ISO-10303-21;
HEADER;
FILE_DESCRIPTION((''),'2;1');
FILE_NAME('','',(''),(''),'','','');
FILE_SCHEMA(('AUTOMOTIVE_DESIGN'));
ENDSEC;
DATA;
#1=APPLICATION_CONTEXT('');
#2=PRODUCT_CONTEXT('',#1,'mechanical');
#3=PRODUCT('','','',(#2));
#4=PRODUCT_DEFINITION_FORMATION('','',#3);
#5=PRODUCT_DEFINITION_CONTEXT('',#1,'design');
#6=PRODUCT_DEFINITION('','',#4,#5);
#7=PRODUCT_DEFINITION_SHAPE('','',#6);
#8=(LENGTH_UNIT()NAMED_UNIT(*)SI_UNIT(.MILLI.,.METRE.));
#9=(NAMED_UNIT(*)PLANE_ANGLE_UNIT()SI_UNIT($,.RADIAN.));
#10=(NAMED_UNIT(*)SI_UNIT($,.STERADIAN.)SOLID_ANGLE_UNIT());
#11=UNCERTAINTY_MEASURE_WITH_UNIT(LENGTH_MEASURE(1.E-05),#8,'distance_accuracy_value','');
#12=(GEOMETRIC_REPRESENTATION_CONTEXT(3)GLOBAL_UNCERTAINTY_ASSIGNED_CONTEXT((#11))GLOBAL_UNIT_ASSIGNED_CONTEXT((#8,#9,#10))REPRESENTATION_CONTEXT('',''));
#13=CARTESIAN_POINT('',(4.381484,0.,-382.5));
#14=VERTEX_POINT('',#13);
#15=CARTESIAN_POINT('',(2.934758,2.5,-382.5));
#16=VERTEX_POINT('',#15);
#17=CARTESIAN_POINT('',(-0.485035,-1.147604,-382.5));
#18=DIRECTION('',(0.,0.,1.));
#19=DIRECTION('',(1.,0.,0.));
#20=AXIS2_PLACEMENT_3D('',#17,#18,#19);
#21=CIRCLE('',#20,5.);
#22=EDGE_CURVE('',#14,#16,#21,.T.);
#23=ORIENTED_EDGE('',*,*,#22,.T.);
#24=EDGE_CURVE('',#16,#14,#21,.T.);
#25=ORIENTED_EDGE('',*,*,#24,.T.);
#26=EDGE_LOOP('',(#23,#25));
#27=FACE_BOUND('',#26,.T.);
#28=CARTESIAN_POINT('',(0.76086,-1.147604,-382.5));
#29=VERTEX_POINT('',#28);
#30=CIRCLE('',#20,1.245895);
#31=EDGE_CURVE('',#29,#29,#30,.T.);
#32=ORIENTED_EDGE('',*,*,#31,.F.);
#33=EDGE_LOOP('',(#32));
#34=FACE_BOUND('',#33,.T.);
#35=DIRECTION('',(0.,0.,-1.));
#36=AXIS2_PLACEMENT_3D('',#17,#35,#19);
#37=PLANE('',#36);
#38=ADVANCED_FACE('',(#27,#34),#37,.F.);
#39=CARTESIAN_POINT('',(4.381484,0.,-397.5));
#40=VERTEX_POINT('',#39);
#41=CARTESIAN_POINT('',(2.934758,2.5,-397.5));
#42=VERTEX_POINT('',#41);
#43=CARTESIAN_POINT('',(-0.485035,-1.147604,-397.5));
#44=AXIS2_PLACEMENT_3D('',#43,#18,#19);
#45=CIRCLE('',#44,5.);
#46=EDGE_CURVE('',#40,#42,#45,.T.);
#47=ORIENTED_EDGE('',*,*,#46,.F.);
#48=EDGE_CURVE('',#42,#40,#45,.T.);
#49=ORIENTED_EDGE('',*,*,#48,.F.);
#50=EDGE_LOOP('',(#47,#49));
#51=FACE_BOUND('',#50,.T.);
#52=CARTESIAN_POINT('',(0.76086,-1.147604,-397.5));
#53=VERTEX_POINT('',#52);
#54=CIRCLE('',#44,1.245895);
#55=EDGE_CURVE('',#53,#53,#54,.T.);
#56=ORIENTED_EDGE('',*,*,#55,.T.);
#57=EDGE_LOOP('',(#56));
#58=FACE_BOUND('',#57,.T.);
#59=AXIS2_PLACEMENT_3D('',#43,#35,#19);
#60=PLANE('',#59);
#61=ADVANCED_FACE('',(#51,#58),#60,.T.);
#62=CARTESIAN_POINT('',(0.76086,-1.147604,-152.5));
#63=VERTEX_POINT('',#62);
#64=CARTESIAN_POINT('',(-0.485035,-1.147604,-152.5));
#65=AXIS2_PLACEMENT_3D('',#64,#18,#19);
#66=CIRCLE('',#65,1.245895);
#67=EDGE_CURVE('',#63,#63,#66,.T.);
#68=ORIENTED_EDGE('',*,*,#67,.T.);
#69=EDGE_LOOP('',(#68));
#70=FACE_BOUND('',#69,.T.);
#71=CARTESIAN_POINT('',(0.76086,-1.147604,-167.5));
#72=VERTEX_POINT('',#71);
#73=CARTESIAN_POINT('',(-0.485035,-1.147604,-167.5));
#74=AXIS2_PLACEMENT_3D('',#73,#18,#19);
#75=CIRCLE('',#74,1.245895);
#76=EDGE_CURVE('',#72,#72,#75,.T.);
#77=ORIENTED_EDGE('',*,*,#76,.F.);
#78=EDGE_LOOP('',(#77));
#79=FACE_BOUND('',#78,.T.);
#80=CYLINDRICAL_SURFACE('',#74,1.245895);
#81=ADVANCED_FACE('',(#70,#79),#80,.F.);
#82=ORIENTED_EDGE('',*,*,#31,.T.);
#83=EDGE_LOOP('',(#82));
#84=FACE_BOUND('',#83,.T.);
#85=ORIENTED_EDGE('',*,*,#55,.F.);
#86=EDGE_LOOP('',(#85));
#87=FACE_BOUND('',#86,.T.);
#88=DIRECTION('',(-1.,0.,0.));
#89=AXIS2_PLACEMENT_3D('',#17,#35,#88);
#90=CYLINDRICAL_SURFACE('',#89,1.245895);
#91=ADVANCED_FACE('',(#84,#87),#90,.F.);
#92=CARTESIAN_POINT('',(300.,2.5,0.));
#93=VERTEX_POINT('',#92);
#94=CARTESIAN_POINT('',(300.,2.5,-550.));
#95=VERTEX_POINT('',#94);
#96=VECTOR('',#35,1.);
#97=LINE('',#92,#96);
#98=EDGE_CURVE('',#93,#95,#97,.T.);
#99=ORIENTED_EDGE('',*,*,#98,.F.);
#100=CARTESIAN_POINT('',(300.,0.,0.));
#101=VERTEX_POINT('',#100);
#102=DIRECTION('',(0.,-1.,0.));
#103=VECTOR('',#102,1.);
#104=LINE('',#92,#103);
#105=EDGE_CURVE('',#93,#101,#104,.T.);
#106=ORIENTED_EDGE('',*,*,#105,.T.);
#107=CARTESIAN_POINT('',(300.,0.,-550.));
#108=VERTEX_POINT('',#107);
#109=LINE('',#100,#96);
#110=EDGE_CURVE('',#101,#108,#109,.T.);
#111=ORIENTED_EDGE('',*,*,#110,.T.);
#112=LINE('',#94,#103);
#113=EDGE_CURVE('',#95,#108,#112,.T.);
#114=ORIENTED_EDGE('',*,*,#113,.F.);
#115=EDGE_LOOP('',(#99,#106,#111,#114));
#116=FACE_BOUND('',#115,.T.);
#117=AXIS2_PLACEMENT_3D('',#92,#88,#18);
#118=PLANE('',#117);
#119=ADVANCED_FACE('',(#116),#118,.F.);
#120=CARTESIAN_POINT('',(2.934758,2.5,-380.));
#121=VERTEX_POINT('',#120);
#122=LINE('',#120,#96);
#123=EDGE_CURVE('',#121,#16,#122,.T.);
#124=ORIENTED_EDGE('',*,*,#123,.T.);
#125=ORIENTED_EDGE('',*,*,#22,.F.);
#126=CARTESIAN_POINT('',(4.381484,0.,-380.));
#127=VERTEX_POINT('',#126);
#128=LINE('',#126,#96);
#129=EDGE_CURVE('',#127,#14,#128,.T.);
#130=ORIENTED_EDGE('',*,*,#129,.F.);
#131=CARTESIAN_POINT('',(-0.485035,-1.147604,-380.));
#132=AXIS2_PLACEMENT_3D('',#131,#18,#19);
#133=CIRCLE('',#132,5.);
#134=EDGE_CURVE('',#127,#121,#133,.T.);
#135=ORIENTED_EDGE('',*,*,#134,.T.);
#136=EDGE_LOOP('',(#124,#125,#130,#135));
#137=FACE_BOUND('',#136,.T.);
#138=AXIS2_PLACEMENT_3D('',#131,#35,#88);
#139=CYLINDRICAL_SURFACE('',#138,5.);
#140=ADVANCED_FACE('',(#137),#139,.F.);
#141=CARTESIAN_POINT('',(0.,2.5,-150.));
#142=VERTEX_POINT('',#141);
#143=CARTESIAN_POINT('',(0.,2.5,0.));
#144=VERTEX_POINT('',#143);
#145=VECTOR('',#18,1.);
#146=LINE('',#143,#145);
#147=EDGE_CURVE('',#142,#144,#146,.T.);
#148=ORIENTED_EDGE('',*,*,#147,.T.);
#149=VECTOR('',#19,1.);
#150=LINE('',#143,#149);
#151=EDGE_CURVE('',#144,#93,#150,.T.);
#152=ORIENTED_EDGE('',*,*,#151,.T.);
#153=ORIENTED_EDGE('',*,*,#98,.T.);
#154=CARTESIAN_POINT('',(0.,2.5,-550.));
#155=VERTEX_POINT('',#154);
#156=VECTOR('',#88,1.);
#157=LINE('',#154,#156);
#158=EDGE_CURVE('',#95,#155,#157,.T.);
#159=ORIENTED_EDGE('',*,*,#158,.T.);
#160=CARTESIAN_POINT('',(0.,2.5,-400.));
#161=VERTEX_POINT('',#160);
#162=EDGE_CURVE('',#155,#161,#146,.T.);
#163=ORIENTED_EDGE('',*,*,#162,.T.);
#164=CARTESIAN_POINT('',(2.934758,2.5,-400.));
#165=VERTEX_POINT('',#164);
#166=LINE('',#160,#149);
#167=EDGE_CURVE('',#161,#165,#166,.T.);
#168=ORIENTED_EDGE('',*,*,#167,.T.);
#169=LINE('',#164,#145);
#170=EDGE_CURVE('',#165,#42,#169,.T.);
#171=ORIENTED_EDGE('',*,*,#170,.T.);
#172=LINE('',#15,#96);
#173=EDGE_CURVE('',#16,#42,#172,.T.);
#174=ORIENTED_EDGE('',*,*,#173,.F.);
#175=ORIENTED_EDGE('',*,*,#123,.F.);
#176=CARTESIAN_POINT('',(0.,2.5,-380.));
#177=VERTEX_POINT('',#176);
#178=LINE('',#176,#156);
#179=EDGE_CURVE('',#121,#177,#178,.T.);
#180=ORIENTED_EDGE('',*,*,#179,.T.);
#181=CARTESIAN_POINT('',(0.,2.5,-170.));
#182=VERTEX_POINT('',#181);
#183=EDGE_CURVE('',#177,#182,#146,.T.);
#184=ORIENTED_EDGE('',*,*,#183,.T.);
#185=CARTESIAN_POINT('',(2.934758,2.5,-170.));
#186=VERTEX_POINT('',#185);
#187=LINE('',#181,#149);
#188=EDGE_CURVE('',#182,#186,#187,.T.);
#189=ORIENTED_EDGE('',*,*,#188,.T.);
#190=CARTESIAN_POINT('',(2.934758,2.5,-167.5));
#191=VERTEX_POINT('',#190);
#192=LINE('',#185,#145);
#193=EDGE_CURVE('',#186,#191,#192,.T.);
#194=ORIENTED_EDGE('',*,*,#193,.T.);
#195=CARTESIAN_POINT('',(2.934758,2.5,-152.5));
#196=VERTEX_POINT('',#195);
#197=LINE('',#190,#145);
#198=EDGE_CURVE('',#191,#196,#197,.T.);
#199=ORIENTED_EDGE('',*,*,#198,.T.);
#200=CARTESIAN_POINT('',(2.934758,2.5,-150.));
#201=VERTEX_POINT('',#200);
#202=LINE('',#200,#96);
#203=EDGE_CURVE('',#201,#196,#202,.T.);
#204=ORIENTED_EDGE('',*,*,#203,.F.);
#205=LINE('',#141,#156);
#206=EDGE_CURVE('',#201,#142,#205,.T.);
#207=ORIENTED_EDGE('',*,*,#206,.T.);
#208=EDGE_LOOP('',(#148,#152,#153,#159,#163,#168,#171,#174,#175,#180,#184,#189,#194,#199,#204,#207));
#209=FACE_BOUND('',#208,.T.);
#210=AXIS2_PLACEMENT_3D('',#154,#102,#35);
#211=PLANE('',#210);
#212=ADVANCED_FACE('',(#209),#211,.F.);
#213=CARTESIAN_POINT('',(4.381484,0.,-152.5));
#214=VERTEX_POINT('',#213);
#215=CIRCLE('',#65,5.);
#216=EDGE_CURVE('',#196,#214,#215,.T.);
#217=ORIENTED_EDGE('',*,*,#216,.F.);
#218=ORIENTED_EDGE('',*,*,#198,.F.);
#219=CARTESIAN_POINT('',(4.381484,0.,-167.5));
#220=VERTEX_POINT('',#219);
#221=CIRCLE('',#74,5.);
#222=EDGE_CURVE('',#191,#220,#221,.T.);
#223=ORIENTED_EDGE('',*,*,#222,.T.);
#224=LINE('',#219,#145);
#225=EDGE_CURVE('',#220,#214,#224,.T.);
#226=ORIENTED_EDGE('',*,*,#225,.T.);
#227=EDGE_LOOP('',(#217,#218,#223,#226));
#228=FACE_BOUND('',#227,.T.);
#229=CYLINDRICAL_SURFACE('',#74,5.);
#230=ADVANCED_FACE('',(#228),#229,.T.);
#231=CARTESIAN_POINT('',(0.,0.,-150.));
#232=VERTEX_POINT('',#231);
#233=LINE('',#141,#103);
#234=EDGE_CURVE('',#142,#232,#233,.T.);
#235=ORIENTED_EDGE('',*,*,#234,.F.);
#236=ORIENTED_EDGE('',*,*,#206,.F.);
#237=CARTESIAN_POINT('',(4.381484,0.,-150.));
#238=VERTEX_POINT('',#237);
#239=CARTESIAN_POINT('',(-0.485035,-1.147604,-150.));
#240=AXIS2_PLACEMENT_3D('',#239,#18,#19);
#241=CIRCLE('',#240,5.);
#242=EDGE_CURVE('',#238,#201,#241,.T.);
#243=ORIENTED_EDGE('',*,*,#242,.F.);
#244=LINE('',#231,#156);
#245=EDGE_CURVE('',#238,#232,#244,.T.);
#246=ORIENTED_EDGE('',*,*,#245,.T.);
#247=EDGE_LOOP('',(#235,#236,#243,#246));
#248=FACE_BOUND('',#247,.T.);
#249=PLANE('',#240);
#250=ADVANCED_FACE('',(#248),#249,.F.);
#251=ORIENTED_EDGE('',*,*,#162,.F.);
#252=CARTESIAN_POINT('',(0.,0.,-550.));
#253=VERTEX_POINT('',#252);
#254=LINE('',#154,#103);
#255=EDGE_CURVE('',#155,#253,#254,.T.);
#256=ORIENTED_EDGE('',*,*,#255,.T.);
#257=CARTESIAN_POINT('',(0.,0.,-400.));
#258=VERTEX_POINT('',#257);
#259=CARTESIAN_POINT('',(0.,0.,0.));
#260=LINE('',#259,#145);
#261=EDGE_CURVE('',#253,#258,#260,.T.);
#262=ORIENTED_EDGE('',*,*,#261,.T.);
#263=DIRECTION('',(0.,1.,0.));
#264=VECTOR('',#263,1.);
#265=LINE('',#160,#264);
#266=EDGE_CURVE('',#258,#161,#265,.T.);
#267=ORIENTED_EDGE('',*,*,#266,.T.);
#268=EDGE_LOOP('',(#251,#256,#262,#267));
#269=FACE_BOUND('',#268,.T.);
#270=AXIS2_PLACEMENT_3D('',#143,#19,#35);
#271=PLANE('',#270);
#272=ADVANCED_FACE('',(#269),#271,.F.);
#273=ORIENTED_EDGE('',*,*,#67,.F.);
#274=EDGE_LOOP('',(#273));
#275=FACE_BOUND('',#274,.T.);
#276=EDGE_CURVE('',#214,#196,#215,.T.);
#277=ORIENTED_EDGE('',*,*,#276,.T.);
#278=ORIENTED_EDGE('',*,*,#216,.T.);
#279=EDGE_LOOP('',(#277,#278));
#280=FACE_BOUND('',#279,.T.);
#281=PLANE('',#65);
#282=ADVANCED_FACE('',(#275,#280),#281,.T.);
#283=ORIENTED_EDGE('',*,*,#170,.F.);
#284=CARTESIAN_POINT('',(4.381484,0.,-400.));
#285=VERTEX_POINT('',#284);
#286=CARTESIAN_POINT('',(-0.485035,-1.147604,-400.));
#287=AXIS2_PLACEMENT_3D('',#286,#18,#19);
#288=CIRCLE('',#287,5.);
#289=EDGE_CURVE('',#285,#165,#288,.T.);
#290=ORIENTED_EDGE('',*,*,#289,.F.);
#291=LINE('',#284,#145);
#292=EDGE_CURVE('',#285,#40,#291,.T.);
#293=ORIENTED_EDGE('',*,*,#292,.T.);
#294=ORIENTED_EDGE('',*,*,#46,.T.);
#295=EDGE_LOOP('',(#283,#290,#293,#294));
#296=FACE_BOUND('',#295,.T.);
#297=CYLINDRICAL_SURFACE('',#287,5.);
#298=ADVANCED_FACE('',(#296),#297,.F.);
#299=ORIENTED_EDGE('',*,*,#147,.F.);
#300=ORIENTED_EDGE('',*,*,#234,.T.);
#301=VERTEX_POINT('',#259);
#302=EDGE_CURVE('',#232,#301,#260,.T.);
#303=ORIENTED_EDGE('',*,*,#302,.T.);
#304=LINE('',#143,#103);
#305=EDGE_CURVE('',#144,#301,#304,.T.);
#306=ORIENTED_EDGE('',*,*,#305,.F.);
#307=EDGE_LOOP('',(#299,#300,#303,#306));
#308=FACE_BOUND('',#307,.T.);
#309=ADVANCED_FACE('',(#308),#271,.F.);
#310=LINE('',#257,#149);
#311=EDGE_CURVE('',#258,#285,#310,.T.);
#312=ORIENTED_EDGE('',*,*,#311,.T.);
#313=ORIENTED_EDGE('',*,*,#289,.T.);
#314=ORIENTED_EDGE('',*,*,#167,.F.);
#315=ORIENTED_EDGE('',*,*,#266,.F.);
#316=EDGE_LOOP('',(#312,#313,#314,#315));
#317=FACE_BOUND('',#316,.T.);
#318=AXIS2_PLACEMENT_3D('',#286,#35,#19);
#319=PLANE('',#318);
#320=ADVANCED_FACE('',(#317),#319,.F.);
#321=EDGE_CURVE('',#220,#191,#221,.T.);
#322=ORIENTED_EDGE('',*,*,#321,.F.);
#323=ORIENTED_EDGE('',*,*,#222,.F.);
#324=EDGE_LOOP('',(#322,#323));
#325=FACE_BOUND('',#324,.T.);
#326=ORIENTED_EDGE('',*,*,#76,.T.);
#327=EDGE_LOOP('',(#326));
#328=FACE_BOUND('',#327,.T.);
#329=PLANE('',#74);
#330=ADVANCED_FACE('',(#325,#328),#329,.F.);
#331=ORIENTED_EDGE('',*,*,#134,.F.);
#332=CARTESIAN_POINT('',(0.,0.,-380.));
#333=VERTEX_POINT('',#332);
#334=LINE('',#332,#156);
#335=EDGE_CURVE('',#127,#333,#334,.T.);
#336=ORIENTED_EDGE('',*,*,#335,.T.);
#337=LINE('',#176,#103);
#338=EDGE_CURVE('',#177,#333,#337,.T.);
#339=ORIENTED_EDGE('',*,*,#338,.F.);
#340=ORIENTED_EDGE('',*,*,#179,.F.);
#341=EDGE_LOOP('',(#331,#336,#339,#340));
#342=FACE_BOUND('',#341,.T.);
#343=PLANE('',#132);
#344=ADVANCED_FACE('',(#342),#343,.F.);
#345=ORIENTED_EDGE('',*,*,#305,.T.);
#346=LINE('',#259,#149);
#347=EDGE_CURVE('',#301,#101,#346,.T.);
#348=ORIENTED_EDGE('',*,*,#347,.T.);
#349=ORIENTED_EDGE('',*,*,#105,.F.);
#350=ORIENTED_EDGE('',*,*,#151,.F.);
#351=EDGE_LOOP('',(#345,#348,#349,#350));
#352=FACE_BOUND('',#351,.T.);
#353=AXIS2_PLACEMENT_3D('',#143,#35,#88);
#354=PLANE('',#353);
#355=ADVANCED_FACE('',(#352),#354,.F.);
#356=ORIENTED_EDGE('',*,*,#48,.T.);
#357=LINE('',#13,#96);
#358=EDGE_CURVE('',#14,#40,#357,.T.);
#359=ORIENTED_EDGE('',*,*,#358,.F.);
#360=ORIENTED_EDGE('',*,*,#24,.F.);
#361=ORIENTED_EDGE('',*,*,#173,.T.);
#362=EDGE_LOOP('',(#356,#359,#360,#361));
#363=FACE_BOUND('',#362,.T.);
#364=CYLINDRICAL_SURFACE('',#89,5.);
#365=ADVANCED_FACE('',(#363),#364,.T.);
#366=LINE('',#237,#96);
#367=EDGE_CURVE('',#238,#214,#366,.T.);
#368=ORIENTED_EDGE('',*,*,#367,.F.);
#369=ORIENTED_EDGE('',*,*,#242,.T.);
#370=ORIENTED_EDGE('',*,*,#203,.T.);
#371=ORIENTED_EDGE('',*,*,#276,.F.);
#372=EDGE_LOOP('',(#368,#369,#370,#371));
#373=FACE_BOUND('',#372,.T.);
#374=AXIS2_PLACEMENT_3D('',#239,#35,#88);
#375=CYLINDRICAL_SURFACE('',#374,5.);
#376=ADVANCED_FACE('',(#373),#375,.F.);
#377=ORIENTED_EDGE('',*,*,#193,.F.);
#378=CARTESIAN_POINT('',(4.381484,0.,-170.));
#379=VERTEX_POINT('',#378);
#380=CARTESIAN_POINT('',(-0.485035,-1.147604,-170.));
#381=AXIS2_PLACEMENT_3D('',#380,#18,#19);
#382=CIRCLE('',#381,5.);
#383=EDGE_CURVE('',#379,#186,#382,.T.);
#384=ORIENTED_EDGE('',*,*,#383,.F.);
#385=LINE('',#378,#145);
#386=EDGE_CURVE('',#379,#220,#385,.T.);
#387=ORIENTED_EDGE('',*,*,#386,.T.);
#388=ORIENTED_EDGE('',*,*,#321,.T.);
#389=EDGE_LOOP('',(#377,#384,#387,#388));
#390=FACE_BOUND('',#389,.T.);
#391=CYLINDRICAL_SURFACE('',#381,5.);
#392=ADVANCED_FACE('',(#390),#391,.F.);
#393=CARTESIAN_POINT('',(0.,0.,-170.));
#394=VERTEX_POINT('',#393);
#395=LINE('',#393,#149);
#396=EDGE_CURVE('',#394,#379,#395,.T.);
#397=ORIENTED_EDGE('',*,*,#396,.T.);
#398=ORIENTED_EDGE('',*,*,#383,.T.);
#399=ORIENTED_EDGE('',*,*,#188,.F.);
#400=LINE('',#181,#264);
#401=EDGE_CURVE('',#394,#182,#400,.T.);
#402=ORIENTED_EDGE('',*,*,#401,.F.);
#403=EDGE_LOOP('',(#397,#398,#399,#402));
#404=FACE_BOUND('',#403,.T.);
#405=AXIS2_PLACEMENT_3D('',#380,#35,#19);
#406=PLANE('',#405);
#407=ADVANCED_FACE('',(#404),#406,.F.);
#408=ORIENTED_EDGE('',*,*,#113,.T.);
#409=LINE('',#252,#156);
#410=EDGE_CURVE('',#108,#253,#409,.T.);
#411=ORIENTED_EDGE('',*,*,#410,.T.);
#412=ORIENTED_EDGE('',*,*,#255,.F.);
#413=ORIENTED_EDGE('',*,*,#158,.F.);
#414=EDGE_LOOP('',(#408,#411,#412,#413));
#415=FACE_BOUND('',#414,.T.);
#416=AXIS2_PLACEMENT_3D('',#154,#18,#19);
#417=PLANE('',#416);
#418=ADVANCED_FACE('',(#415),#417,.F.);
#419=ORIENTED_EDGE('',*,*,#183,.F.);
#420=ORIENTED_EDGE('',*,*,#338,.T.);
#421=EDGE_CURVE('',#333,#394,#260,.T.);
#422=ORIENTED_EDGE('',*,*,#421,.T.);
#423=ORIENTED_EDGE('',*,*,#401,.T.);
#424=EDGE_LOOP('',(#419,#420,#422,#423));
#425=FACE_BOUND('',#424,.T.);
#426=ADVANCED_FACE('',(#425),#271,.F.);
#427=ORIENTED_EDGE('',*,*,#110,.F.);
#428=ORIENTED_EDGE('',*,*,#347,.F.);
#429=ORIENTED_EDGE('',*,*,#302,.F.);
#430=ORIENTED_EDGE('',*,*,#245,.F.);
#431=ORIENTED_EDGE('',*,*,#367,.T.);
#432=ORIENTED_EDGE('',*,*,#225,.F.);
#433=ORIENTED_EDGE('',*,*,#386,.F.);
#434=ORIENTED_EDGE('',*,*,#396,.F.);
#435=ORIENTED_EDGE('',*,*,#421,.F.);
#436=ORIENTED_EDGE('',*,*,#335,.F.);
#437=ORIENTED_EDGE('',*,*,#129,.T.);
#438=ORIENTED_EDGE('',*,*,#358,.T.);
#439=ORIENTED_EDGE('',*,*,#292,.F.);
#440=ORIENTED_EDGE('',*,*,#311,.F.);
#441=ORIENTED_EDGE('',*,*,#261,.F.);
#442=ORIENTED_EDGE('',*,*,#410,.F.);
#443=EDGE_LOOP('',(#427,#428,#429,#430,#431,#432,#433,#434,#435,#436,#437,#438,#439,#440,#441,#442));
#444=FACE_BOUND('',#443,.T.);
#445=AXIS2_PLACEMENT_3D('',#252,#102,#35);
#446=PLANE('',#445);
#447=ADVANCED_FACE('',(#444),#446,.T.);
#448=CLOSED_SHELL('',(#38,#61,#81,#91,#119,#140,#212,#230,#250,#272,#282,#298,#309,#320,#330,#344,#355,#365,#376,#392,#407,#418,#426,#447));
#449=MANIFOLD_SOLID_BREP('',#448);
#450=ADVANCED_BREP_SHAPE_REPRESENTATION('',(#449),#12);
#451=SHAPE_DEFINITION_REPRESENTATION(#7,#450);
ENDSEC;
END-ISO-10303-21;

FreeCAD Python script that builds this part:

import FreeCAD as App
import Part
import Sketcher

V = App.Vector


def add_polygon(sketch, points):
    """Adds a closed chain of lines whose ends are joined by coincident constraints."""
    first, n = sketch.GeometryCount, len(points)
    for a, b in zip(points, points[1:] + points[:1]):
        sketch.addGeometry(Part.LineSegment(App.Vector(*a, 0), App.Vector(*b, 0)), False)
    for i in range(n):
        sketch.addConstraint(Sketcher.Constraint("Coincident", first + i, 2, first + (i + 1) % n, 1))

doc = App.newDocument("Part")
params = doc.addObject("Spreadsheet::Sheet", "Params")
for row, (alias, value) in enumerate([
    ("sketch1_width", "300 mm"),
    ("sketch1_height", "550 mm"),
    ("pad1_length", "2.5 mm"),
    ("sketch2_diameter", "10 mm"),
    ("pad2_length", "15 mm"),
    ("sketch3_diameter", "10 mm"),
    ("pocket1_length", "2.5 mm"),
    ("sketch4_diameter", "10 mm"),
    ("pocket2_length", "2.5 mm"),
], start=1):
    params.set(f"A{row}", alias)
    params.set(f"B{row}", "=" + value)
    params.setAlias(f"B{row}", alias)

body = doc.addObject("PartDesign::Body", "Body")

sketch1 = body.newObject("Sketcher::SketchObject", "Sketch")
sketch1.AttachmentSupport = (doc.getObject("XZ_Plane"), [""])
sketch1.MapMode = "FlatFace"
add_polygon(sketch1, [(0, -550), (0, 0), (300, 0), (300, -550)])
sketch1.addConstraint(Sketcher.Constraint("Vertical", 0))
sketch1.addConstraint(Sketcher.Constraint("Horizontal", 1))
sketch1.addConstraint(Sketcher.Constraint("Vertical", 2))
sketch1.addConstraint(Sketcher.Constraint("Horizontal", 3))
sketch1.addConstraint(Sketcher.Constraint("Coincident", 0, 2, -1, 1))
sketch1.addConstraint(Sketcher.Constraint("DistanceX", 1, 1, 1, 2, 300.0))
sketch1.addConstraint(Sketcher.Constraint("DistanceY", 0, 1, 0, 2, 550.0))
sketch1.setExpression("Constraints[9]", "Params.sketch1_width")
sketch1.setExpression("Constraints[10]", "Params.sketch1_height")
pad1 = body.newObject("PartDesign::Pad", "Pad")
pad1.Profile = sketch1
pad1.setExpression("Length", "Params.pad1_length")
pad1.Reversed = True

sketch2 = body.newObject("Sketcher::SketchObject", "Sketch001")
sketch2.AttachmentSupport = (doc.getObject("XY_Plane"), [""])
sketch2.MapMode = "FlatFace"
sketch2.AttachmentOffset = App.Placement(V(0, 0, -152.5), App.Rotation())
sketch2.addGeometry(Part.Circle(V(-0.485035, -1.147604, 0), V(0, 0, 1), 5), False)
sketch2.addGeometry(Part.Circle(V(-0.485035, -1.147604, 0), V(0, 0, 1), 1.245895), False)
sketch2.addConstraint(Sketcher.Constraint("Coincident", 1, 3, 0, 3))
sketch2.addConstraint(Sketcher.Constraint("Diameter", 0, 10.0))
sketch2.addConstraint(Sketcher.Constraint("Diameter", 1, 2.49179))
sketch2.addConstraint(Sketcher.Constraint("DistanceX", 0, 3, -1, 1, 0.485035))
sketch2.addConstraint(Sketcher.Constraint("DistanceY", 0, 3, -1, 1, 1.147604))
sketch2.setExpression("Constraints[1]", "Params.sketch2_diameter")
pad2 = body.newObject("PartDesign::Pad", "Pad001")
pad2.Profile = sketch2
pad2.setExpression("Length", "Params.pad2_length")
pad2.Reversed = True
doc.recompute()

datumplane = body.newObject("PartDesign::Plane", "DatumPlane")
datumplane.AttachmentSupport = (doc.getObject("XY_Plane"), [""])
datumplane.MapMode = "FlatFace"
datumplane.AttachmentOffset = App.Placement(V(0, 0, -275), App.Rotation())
mirrored = body.newObject("PartDesign::Mirrored", "Mirrored")
mirrored.Originals = [pad2]
mirrored.MirrorPlane = (datumplane, [""])
body.Tip = mirrored

sketch3 = body.newObject("Sketcher::SketchObject", "Sketch002")
sketch3.AttachmentSupport = (doc.getObject("XY_Plane"), [""])
sketch3.MapMode = "FlatFace"
sketch3.AttachmentOffset = App.Placement(V(0, 0, -152.5), App.Rotation())
sketch3.addGeometry(Part.Circle(V(-0.485035, -1.147604, 0), V(0, 0, 1), 5), False)
sketch3.addConstraint(Sketcher.Constraint("Diameter", 0, 10.0))
sketch3.addConstraint(Sketcher.Constraint("DistanceX", 0, 3, -1, 1, 0.485035))
sketch3.addConstraint(Sketcher.Constraint("DistanceY", 0, 3, -1, 1, 1.147604))
sketch3.setExpression("Constraints[0]", "Params.sketch3_diameter")
pocket1 = body.newObject("PartDesign::Pocket", "Pocket")
pocket1.Profile = sketch3
pocket1.setExpression("Length", "Params.pocket1_length")
pocket1.Reversed = True
doc.recompute()

datumplane2 = body.newObject("PartDesign::Plane", "DatumPlane001")
datumplane2.AttachmentSupport = (doc.getObject("XY_Plane"), [""])
datumplane2.MapMode = "FlatFace"
datumplane2.AttachmentOffset = App.Placement(V(0, 0, -160), App.Rotation())
mirrored2 = body.newObject("PartDesign::Mirrored", "Mirrored001")
mirrored2.Originals = [pocket1]
mirrored2.MirrorPlane = (datumplane2, [""])
body.Tip = mirrored2
doc.recompute()

datumplane3 = body.newObject("PartDesign::Plane", "DatumPlane002")
datumplane3.AttachmentSupport = (doc.getObject("XY_Plane"), [""])
datumplane3.MapMode = "FlatFace"
datumplane3.AttachmentOffset = App.Placement(V(0, 0, -275), App.Rotation())
mirrored3 = body.newObject("PartDesign::Mirrored", "Mirrored002")
mirrored3.Originals = [pocket1]
mirrored3.MirrorPlane = (datumplane3, [""])
body.Tip = mirrored3

sketch4 = body.newObject("Sketcher::SketchObject", "Sketch003")
sketch4.AttachmentSupport = (doc.getObject("XY_Plane"), [""])
sketch4.MapMode = "FlatFace"
sketch4.AttachmentOffset = App.Placement(V(0, 0, -382.5), App.Rotation())
sketch4.addGeometry(Part.Circle(V(-0.485035, -1.147604, 0), V(0, 0, 1), 5), False)
sketch4.addConstraint(Sketcher.Constraint("Diameter", 0, 10.0))
sketch4.addConstraint(Sketcher.Constraint("DistanceX", 0, 3, -1, 1, 0.485035))
sketch4.addConstraint(Sketcher.Constraint("DistanceY", 0, 3, -1, 1, 1.147604))
sketch4.setExpression("Constraints[0]", "Params.sketch4_diameter")
pocket2 = body.newObject("PartDesign::Pocket", "Pocket001")
pocket2.Profile = sketch4
pocket2.setExpression("Length", "Params.pocket2_length")
pocket2.Reversed = True

doc.recompute()
